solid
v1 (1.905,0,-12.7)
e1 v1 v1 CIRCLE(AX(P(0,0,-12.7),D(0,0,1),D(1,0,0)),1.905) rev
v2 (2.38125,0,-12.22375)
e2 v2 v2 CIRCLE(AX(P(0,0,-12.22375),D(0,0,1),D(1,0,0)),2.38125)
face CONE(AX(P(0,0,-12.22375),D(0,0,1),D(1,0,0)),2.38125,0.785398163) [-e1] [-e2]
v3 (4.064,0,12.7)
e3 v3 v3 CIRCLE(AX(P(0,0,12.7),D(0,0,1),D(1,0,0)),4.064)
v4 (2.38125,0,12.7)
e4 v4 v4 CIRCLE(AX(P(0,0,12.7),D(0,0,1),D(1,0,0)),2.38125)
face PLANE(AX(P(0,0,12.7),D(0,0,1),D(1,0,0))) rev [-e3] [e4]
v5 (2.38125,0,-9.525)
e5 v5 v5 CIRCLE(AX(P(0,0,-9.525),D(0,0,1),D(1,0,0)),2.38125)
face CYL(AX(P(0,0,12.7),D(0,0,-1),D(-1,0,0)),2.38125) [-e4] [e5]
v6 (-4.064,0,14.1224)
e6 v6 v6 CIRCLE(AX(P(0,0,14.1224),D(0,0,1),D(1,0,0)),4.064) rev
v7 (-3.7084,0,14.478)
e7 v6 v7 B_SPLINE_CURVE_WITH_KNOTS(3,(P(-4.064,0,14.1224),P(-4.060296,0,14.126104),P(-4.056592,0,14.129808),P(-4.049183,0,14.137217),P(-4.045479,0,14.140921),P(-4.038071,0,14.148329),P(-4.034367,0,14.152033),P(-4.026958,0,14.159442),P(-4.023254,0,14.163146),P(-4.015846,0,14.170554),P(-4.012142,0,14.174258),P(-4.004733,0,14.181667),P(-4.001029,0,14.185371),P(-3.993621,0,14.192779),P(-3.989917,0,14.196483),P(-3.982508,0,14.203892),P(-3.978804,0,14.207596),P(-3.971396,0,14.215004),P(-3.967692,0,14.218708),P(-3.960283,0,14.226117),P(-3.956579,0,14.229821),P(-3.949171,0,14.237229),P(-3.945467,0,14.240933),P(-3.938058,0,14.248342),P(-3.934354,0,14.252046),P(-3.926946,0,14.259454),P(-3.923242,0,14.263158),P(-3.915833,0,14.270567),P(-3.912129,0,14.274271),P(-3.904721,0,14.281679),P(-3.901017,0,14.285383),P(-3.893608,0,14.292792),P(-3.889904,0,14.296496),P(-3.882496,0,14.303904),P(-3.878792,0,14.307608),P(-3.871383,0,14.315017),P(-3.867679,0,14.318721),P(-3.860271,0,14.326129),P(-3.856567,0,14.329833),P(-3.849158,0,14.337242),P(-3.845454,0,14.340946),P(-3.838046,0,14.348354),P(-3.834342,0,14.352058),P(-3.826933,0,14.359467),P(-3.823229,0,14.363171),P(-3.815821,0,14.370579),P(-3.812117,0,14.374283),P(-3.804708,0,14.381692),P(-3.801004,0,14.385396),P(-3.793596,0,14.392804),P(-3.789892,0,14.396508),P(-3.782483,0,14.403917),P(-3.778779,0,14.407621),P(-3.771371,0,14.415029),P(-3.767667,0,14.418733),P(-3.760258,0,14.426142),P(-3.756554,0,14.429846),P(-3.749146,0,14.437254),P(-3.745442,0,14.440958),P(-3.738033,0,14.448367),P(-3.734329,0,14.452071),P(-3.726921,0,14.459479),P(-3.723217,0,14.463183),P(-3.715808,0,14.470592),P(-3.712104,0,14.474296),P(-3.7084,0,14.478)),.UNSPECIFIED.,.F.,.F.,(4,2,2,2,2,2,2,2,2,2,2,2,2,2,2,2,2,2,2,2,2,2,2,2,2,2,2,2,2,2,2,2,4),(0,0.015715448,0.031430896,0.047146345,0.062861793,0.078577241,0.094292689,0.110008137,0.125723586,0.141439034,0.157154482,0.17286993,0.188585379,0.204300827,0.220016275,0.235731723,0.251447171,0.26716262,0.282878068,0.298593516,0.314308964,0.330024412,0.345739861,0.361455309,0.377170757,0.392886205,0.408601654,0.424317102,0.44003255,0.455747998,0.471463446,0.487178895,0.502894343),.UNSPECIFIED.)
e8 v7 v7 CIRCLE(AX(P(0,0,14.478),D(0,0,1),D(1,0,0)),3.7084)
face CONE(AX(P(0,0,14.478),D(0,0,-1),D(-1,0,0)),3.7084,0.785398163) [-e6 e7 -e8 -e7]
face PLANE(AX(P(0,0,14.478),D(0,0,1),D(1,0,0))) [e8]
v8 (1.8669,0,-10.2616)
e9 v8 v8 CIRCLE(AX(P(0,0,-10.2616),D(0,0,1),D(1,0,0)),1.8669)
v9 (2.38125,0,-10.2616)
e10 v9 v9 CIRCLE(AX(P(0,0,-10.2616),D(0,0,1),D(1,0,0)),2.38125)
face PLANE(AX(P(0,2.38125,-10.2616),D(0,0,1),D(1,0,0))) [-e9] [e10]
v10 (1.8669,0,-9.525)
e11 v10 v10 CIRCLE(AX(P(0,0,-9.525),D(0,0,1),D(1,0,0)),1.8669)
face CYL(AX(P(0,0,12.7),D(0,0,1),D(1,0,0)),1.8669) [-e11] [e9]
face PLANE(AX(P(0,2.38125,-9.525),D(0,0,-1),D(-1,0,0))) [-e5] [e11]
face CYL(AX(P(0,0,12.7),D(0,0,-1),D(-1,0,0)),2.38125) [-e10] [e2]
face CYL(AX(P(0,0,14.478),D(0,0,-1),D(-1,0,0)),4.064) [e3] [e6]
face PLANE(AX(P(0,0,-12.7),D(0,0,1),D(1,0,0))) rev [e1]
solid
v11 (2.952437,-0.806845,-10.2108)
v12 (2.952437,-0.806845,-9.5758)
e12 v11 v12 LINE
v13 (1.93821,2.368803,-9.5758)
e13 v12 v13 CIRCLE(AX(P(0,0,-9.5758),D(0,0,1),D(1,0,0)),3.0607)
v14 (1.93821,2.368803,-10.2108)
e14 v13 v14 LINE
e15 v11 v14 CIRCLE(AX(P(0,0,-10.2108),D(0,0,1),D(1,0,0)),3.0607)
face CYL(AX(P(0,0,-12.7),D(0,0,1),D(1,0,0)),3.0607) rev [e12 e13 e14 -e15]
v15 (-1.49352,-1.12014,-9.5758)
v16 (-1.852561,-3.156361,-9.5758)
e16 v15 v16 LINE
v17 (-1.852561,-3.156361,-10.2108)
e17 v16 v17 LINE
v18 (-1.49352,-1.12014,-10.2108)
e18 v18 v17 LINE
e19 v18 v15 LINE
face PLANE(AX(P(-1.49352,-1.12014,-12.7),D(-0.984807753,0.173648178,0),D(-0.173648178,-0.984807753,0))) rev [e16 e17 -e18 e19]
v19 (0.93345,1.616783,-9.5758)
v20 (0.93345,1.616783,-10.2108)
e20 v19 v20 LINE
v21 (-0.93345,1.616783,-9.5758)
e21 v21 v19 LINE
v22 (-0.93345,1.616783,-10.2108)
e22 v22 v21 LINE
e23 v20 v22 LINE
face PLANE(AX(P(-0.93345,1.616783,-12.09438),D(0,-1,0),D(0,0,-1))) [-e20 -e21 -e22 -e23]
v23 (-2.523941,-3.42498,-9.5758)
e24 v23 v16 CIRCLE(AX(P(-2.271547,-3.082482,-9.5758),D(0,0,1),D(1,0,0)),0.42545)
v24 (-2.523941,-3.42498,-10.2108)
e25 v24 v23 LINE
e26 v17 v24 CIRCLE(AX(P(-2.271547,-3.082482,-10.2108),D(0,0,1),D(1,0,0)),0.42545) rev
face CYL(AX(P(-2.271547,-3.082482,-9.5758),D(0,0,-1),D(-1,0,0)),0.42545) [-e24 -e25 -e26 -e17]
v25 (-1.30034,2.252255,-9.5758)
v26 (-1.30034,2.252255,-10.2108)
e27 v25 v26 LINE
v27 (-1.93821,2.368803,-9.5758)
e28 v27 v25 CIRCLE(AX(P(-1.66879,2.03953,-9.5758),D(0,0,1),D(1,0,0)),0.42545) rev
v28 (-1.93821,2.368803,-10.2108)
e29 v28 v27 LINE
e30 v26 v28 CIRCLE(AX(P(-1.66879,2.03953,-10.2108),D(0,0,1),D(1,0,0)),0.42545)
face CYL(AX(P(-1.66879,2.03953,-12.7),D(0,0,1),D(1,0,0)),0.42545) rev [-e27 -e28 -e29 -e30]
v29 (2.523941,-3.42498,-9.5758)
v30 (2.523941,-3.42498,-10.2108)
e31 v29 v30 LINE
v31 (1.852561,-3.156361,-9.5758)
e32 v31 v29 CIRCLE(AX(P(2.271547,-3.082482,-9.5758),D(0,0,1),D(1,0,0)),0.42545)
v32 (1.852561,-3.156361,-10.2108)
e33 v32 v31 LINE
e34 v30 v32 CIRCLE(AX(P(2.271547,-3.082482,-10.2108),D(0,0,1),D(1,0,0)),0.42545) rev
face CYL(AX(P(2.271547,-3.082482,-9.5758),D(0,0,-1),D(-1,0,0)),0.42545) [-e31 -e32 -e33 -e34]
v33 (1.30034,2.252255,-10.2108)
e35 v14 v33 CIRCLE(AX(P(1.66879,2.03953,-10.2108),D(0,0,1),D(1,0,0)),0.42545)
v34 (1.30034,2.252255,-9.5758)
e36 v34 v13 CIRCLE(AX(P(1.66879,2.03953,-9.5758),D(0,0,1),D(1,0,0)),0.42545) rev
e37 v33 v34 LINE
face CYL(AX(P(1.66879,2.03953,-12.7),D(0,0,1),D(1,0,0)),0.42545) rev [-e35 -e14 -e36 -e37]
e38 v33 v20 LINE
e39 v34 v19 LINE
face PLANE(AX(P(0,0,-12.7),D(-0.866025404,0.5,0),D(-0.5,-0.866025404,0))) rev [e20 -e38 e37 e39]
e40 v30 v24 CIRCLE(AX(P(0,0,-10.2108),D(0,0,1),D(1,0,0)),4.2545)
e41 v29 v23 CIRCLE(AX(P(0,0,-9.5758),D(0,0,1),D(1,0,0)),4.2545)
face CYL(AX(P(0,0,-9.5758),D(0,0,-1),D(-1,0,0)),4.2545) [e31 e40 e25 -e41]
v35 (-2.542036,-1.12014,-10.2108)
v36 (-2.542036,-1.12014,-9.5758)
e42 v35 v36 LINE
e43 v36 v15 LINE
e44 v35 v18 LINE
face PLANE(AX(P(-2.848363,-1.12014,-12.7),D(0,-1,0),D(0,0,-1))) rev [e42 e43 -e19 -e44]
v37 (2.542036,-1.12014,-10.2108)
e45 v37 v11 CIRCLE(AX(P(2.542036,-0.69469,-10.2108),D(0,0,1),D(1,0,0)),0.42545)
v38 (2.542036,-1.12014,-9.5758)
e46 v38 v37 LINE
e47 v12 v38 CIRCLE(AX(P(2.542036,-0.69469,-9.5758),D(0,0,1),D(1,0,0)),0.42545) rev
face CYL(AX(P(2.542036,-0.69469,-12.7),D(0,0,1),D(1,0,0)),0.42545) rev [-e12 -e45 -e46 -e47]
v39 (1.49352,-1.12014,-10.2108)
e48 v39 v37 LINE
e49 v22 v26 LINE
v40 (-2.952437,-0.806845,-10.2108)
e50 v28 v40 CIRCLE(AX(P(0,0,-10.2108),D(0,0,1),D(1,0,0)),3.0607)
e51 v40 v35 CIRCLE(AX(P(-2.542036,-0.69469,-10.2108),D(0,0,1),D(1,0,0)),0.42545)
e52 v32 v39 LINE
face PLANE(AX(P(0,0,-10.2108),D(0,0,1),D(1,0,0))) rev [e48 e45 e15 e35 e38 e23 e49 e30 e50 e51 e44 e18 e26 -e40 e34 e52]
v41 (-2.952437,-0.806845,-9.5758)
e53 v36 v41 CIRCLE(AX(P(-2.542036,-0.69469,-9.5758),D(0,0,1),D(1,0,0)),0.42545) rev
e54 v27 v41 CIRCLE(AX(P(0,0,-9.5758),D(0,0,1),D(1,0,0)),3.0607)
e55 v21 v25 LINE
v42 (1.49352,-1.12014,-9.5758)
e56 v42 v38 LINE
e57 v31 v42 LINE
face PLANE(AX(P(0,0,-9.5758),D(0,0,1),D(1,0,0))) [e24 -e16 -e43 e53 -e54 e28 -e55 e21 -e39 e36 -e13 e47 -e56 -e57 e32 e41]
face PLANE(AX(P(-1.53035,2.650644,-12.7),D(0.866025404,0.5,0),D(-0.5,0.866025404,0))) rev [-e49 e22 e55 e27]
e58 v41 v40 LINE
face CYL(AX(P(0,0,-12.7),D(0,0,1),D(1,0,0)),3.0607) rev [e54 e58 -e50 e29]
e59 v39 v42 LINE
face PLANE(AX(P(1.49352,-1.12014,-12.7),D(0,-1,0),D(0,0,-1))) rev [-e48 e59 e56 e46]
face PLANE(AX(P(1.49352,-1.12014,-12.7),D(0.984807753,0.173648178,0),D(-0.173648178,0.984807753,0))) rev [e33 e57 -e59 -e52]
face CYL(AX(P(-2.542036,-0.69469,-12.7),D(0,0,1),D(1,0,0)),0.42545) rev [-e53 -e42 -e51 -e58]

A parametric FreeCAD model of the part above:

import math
import FreeCAD as App
import Part
import Sketcher
from FreeCAD import Vector
Q = App.Units.Quantity


def edges_at(feature, points):
    """Names of the edges that pass closest to the given points."""
    edges = feature.Shape.Edges
    near = lambda p: min(range(len(edges)), key=lambda i: edges[i].distToShape(Part.Vertex(*p))[0])
    return sorted({f"Edge{near(p) + 1}" for p in points})


def add_polygon(sketch, points):
    """Adds a closed chain of lines whose ends are joined by coincident constraints."""
    first, n = sketch.GeometryCount, len(points)
    for a, b in zip(points, points[1:] + points[:1]):
        sketch.addGeometry(Part.LineSegment(App.Vector(*a, 0), App.Vector(*b, 0)), False)
    for i in range(n):
        sketch.addConstraint(Sketcher.Constraint("Coincident", first + i, 2, first + (i + 1) % n, 1))

doc = App.newDocument("Part")
params = doc.addObject("Spreadsheet::Sheet", "Params")
for row, (alias, value) in enumerate([
    ("sketch1_diameter", "0.1875 in"),
    ("pad1_length", "1 in"),
    ("sketch2_height", "0.029 in"),
    ("groove_angle", "360 deg"),
    ("sketch3_diameter", "0.32 in"),
    ("pad2_length", "0.07 in"),
    ("chamfer_size", "0.014 in"),
    ("chamfer2_size", "0.47625 mm"),
    ("sketch4_diameter", "0.335 in"),
    ("sketch4_diameter2", "0.147 in"),
    ("pad3_length", "0.025 in"),
    ("pad4_length", "0.025 in"),
    ("fillet_radius", "0.42545 mm"),
], start=1):
    params.set(f"A{row}", alias)
    params.set(f"B{row}", "=" + value)
    params.setAlias(f"B{row}", alias)

body = doc.addObject("PartDesign::Body", "Body")

# Sketch on XY plane
sketch1 = body.newObject("Sketcher::SketchObject", "Sketch")
sketch1.AttachmentSupport = (doc.getObject("XY_Plane"), [""])
sketch1.MapMode = "FlatFace"
sketch1.addGeometry(Part.Circle(Vector(0, 0, 0), Vector(0, 0, 1), 2.4), False)
sketch1.addConstraint([
    Sketcher.Constraint("Coincident", 0, 3, -1, 1),
    Sketcher.Constraint("Diameter", 0, Q("0.1875 in")),
])
sketch1.setExpression("Constraints[1]", "Params.sketch1_diameter")
pad1 = body.newObject("PartDesign::Pad", "Pad")
pad1.Profile = sketch1
pad1.setExpression("Length", "Params.pad1_length")
pad1.Midplane = True

# Sketch on YZ plane
sketch2 = body.newObject("Sketcher::SketchObject", "Sketch001")
sketch2.AttachmentSupport = (doc.getObject("YZ_Plane"), [""])
sketch2.MapMode = "FlatFace"
add_polygon(sketch2, [(2.4, -9.5), (1.9, -9.5), (1.9, -10.3), (2.4, -10.3)])  # lines 0-3
sketch2.addConstraint([
    Sketcher.Constraint("Horizontal", 0),
    Sketcher.Constraint("Vertical", 1),
    Sketcher.Constraint("Horizontal", 2),
    Sketcher.Constraint("Vertical", 3),
    Sketcher.Constraint("DistanceY", 1, 2, 1, 1, Q("0.029 in")),
    Sketcher.Constraint("DistanceY", 0, 2, -1, 1, Q("0.375 in")),
    Sketcher.Constraint("DistanceX", -1, 1, 2, 2, Q("0.09375 in")),
    Sketcher.Constraint("DistanceX", -1, 1, 0, 2, Q("0.0735 in")),
])
sketch2.setExpression("Constraints[8]", "Params.sketch2_height")
groove = body.newObject("PartDesign::Groove", "Groove")
groove.Profile = sketch2
groove.ReferenceAxis = (sketch2, ["V_Axis"])
groove.setExpression("Angle", "Params.groove_angle")

# Sketch on XY plane
sketch3 = body.newObject("Sketcher::SketchObject", "Sketch002")
sketch3.AttachmentSupport = (doc.getObject("XY_Plane"), [""])
sketch3.MapMode = "FlatFace"
sketch3.AttachmentOffset = App.Placement(Vector(0, 0, 0.5 * 25.4), App.Rotation())
sketch3.addGeometry(Part.Circle(Vector(0, 0, 0), Vector(0, 0, 1), 4.1), False)
sketch3.addConstraint([
    Sketcher.Constraint("Coincident", 0, 3, -1, 1),
    Sketcher.Constraint("Diameter", 0, Q("0.32 in")),
])
sketch3.setExpression("Constraints[1]", "Params.sketch3_diameter")
pad2 = body.newObject("PartDesign::Pad", "Pad001")
pad2.Profile = sketch3
pad2.setExpression("Length", "Params.pad2_length")
doc.recompute()

chamfer = body.newObject("PartDesign::Chamfer", "Chamfer")
chamfer.Base = (pad2, edges_at(pad2, [(-4.064, 0, 14.478)]))
chamfer.setExpression("Size", "Params.chamfer_size")
doc.recompute()

chamfer2 = body.newObject("PartDesign::Chamfer", "Chamfer001")
chamfer2.Base = (chamfer, edges_at(chamfer, [(-2.381, 0, -12.7)]))
chamfer2.setExpression("Size", "Params.chamfer2_size")
body2 = doc.addObject("PartDesign::Body", "Body001")

# Sketch on XY plane
sketch4 = body2.newObject("Sketcher::SketchObject", "Sketch003")
sketch4.AttachmentSupport = (doc.getObject("XY_Plane001"), [""])
sketch4.MapMode = "FlatFace"
sketch4.AttachmentOffset = App.Placement(Vector(0, 0, -0.3895 * 25.4), App.Rotation())
sketch4.addGeometry([
    Part.Circle(Vector(0, 0, 0), Vector(0, 0, 1), 4.3),
    Part.Circle(Vector(0, 0, 0), Vector(0, 0, 1), 1.9),
], False)
sketch4.addConstraint([
    Sketcher.Constraint("Coincident", 0, 3, -1, 1),
    Sketcher.Constraint("Coincident", 1, 3, -1, 1),
    Sketcher.Constraint("Diameter", 0, Q("0.335 in")),
    Sketcher.Constraint("Diameter", 1, Q("0.147 in")),
])
sketch4.setExpression("Constraints[2]", "Params.sketch4_diameter")
sketch4.setExpression("Constraints[3]", "Params.sketch4_diameter2")
pad3 = body2.newObject("PartDesign::Pad", "Pad002")
pad3.Profile = sketch4
pad3.setExpression("Length", "Params.pad3_length")
pad3.Midplane = True

# Sketch on XY plane
sketch5 = body2.newObject("Sketcher::SketchObject", "Sketch004")
sketch5.AttachmentSupport = (doc.getObject("XY_Plane001"), [""])
sketch5.MapMode = "FlatFace"
sketch5.addGeometry([
    Part.LineSegment(Vector(0, 0, 0), Vector(-1.5, 2.7, 0)),  # 0
    Part.ArcOfCircle(Part.Circle(Vector(0, 0, 0), Vector(0, 0, 1), 3.1), math.radians(120), math.radians(201)),  # 1
    Part.LineSegment(Vector(-2.8, -1.1, 0), Vector(-1.5, -1.1, 0)),  # 2
    Part.LineSegment(Vector(-1.5, -1.1, 0), Vector(-2, -3.8, 0)),  # 3
    Part.ArcOfCircle(Part.Circle(Vector(0, 0, 0), Vector(0, 0, 1), 4.3), math.radians(-117), math.radians(-63)),  # 4
    Part.LineSegment(Vector(2, -3.8, 0), Vector(1.5, -1.1, 0)),  # 5
    Part.LineSegment(Vector(1.5, -1.1, 0), Vector(2.8, -1.1, 0)),  # 6
    Part.ArcOfCircle(Part.Circle(Vector(0, 0, 0), Vector(0, 0, 1), 3.1), math.radians(-21), math.radians(60)),  # 7
    Part.LineSegment(Vector(1.5, 2.7, 0), Vector(0, 0, 0)),  # 8
], False)
sketch5.addConstraint([
    Sketcher.Constraint("Coincident", 0, 2, 1, 1),
    Sketcher.Constraint("Coincident", 1, 2, 2, 1),
    Sketcher.Constraint("Coincident", 2, 2, 3, 1),
    Sketcher.Constraint("Coincident", 3, 2, 4, 1),
    Sketcher.Constraint("Coincident", 4, 2, 5, 1),
    Sketcher.Constraint("Coincident", 5, 2, 6, 1),
    Sketcher.Constraint("Coincident", 6, 2, 7, 1),
    Sketcher.Constraint("Coincident", 7, 2, 8, 1),
    Sketcher.Constraint("Coincident", 8, 2, 0, 1),
    Sketcher.Constraint("Horizontal", 2),
    Sketcher.Constraint("Horizontal", 6),
    Sketcher.Constraint("Coincident", 1, 3, -1, 1),
    Sketcher.Constraint("Coincident", 4, 3, -1, 1),
    Sketcher.Constraint("Coincident", 7, 3, -1, 1),
    Sketcher.Constraint("Coincident", 8, 2, -1, 1),
    Sketcher.Constraint("Equal", 1, 7),
    Sketcher.Constraint("Symmetric", 2, 2, 5, 2, -2),
    Sketcher.Constraint("Horizontal", 3, 2, 4, 2),
    Sketcher.Constraint("Horizontal", 0, 2, 7, 2),
    Sketcher.Constraint("Angle", 0, Q("120 deg")),
    Sketcher.Constraint("Angle", 3, Q("-100 deg")),
    Sketcher.Constraint("Radius", 1, Q("0.1205 in")),
    Sketcher.Constraint("Radius", 4, Q("0.1675 in")),
    Sketcher.Constraint("DistanceY", 1, 2, -1, 1, Q("0.0441 in")),
    Sketcher.Constraint("DistanceX", 2, 2, -1, 1, Q("0.0588 in")),
])
pocket1 = body2.newObject("PartDesign::Pocket", "Pocket")
pocket1.Profile = sketch5
pocket1.Type = "ThroughAll"

# Sketch on XY plane
sketch6 = body2.newObject("Sketcher::SketchObject", "Sketch005")
sketch6.AttachmentSupport = (doc.getObject("XY_Plane001"), [""])
sketch6.MapMode = "FlatFace"
sketch6.AttachmentOffset = App.Placement(Vector(0, 0, -0.377 * 25.4), App.Rotation())
sketch6.addGeometry([
    Part.LineSegment(Vector(-0.9, 1.6, 0), Vector(0.9, 1.6, 0)),
    Part.ArcOfCircle(Part.Circle(Vector(0, 0, 0), Vector(0, 0, 1), 1.9), math.radians(60), math.radians(120)),
], False)
sketch6.addConstraint([
    Sketcher.Constraint("Coincident", 0, 1, 1, 2),
    Sketcher.Constraint("Coincident", 1, 1, 0, 2),
    Sketcher.Constraint("Horizontal", 0),
    Sketcher.Constraint("Coincident", 1, 3, -1, 1),
    Sketcher.Constraint("Radius", 1, Q("0.0735 in")),
    Sketcher.Constraint("DistanceX", 0, 1, 0, 2, Q("0.0735 in")),
])
pad4 = body2.newObject("PartDesign::Pad", "Pad003")
pad4.Profile = sketch6
pad4.setExpression("Length", "Params.pad4_length")
pad4.Reversed = True
doc.recompute()

fillet = body2.newObject("PartDesign::Fillet", "Fillet")
fillet.Base = (pad4, edges_at(pad4, [
    (1.53, 2.651, -9.893),
    (1.962, -3.775, -9.893),
    (-2.848, -1.12, -9.893),
    (2.848, -1.12, -9.893),
    (-1.962, -3.775, -9.893),
    (-1.53, 2.651, -9.893),
]))
fillet.setExpression("Radius", "Params.fillet_radius")

doc.recompute()
